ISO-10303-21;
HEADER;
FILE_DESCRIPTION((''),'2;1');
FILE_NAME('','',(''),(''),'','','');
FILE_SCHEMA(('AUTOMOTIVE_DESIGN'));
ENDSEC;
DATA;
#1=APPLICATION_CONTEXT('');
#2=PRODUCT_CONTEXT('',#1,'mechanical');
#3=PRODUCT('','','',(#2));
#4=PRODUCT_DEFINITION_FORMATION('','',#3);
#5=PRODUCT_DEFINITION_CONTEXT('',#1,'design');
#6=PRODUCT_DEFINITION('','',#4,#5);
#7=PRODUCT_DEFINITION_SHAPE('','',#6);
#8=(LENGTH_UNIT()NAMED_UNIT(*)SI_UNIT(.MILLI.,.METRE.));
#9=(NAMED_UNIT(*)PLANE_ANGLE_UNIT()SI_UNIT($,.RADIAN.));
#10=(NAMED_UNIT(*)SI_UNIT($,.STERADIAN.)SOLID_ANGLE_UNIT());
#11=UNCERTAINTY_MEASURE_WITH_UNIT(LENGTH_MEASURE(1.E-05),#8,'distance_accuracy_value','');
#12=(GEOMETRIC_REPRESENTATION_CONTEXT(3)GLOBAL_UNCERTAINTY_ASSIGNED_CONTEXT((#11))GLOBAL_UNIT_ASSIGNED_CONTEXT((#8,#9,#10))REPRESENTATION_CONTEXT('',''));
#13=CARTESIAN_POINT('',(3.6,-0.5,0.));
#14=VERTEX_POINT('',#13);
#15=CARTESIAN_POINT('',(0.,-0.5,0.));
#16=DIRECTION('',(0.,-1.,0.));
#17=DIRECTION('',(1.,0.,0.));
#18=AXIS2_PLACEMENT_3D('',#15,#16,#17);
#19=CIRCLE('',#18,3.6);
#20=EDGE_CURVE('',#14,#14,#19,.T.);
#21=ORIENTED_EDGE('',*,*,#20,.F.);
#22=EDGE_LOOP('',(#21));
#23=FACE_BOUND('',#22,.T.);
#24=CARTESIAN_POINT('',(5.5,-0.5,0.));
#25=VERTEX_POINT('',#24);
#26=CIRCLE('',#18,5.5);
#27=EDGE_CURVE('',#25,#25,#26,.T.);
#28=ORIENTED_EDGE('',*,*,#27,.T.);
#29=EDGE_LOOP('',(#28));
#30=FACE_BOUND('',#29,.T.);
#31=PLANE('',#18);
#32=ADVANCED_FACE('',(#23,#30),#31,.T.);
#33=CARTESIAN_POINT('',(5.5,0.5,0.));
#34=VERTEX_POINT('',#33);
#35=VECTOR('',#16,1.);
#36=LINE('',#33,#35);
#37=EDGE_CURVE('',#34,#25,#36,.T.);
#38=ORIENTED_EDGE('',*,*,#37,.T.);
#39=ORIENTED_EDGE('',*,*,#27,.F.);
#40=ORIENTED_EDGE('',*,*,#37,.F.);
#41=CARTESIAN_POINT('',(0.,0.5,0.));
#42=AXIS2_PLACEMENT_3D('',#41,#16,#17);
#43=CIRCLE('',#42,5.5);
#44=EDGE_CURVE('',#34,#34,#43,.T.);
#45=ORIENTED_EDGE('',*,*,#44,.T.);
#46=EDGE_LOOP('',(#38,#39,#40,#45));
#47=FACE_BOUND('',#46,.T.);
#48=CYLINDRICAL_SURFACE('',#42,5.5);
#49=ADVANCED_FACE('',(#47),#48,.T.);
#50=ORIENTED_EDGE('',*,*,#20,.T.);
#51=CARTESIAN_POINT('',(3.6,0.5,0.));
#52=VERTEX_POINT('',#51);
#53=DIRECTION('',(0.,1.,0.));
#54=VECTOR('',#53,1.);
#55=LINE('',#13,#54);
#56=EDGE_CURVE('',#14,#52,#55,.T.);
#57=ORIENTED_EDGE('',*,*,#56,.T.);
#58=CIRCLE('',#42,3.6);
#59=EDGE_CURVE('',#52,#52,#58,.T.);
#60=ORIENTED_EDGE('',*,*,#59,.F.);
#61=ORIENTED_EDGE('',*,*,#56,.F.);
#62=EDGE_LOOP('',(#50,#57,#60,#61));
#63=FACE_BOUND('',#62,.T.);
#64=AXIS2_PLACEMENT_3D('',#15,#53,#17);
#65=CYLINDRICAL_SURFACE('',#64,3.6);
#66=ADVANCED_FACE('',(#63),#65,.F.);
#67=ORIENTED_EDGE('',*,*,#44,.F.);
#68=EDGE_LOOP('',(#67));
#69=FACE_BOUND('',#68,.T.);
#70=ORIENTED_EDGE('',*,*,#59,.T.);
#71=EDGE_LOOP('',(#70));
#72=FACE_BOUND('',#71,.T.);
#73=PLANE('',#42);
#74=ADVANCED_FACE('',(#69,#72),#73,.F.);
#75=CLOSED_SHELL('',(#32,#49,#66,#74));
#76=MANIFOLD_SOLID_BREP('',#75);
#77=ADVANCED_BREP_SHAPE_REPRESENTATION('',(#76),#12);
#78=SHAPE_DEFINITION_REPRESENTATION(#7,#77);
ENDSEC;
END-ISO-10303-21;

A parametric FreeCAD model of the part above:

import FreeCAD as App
import Part
import Sketcher
Q = App.Units.Quantity

doc = App.newDocument("Part")
params = doc.addObject("Spreadsheet::Sheet", "Params")
for row, (alias, value) in enumerate([
    ("sketch1_height", "1 mm"),
    ("sketch1_width", "1.9 mm"),
    ("revolution_angle", "360 deg"),
], start=1):
    params.set(f"A{row}", alias)
    params.set(f"B{row}", "=" + value)
    params.setAlias(f"B{row}", alias)

body = doc.addObject("PartDesign::Body", "Body")

sketch1 = body.newObject("Sketcher::SketchObject", "Sketch")
sketch1.AttachmentSupport = (doc.getObject("XY_Plane"), [""])
sketch1.MapMode = "FlatFace"
sketch1.addGeometry(Part.LineSegment(App.Vector(5.5, 0.5, 0), App.Vector(3.6, 0.5, 0)), False)
sketch1.addGeometry(Part.LineSegment(App.Vector(3.6, 0.5, 0), App.Vector(3.6, -0.5, 0)), False)
sketch1.addGeometry(Part.LineSegment(App.Vector(3.6, -0.5, 0), App.Vector(5.5, -0.5, 0)), False)
sketch1.addGeometry(Part.LineSegment(App.Vector(5.5, -0.5, 0), App.Vector(5.5, 0.5, 0)), False)
sketch1.addConstraint(Sketcher.Constraint("Coincident", 0, 2, 1, 1))
sketch1.addConstraint(Sketcher.Constraint("Coincident", 1, 2, 2, 1))
sketch1.addConstraint(Sketcher.Constraint("Coincident", 2, 2, 3, 1))
sketch1.addConstraint(Sketcher.Constraint("Coincident", 3, 2, 0, 1))
sketch1.addConstraint(Sketcher.Constraint("Horizontal", 0))
sketch1.addConstraint(Sketcher.Constraint("Vertical", 1))
sketch1.addConstraint(Sketcher.Constraint("Horizontal", 2))
sketch1.addConstraint(Sketcher.Constraint("Vertical", 3))
sketch1.addConstraint(Sketcher.Constraint("DistanceY", 1, 2, 1, 1, Q("1 mm")))
sketch1.addConstraint(Sketcher.Constraint("DistanceX", 0, 2, 0, 1, Q("1.9 mm")))
sketch1.addConstraint(Sketcher.Constraint("DistanceX", -1, 1, 0, 2, Q("3.6 mm")))
sketch1.addConstraint(Sketcher.Constraint("DistanceY", -1, 1, 0, 2, Q("0.5 mm")))
sketch1.setExpression("Constraints[8]", "Params.sketch1_height")
sketch1.setExpression("Constraints[9]", "Params.sketch1_width")
revolution = body.newObject("PartDesign::Revolution", "Revolution")
revolution.Profile = sketch1
revolution.ReferenceAxis = (sketch1, ["V_Axis"])
revolution.setExpression("Angle", "Params.revolution_angle")

doc.recompute()
